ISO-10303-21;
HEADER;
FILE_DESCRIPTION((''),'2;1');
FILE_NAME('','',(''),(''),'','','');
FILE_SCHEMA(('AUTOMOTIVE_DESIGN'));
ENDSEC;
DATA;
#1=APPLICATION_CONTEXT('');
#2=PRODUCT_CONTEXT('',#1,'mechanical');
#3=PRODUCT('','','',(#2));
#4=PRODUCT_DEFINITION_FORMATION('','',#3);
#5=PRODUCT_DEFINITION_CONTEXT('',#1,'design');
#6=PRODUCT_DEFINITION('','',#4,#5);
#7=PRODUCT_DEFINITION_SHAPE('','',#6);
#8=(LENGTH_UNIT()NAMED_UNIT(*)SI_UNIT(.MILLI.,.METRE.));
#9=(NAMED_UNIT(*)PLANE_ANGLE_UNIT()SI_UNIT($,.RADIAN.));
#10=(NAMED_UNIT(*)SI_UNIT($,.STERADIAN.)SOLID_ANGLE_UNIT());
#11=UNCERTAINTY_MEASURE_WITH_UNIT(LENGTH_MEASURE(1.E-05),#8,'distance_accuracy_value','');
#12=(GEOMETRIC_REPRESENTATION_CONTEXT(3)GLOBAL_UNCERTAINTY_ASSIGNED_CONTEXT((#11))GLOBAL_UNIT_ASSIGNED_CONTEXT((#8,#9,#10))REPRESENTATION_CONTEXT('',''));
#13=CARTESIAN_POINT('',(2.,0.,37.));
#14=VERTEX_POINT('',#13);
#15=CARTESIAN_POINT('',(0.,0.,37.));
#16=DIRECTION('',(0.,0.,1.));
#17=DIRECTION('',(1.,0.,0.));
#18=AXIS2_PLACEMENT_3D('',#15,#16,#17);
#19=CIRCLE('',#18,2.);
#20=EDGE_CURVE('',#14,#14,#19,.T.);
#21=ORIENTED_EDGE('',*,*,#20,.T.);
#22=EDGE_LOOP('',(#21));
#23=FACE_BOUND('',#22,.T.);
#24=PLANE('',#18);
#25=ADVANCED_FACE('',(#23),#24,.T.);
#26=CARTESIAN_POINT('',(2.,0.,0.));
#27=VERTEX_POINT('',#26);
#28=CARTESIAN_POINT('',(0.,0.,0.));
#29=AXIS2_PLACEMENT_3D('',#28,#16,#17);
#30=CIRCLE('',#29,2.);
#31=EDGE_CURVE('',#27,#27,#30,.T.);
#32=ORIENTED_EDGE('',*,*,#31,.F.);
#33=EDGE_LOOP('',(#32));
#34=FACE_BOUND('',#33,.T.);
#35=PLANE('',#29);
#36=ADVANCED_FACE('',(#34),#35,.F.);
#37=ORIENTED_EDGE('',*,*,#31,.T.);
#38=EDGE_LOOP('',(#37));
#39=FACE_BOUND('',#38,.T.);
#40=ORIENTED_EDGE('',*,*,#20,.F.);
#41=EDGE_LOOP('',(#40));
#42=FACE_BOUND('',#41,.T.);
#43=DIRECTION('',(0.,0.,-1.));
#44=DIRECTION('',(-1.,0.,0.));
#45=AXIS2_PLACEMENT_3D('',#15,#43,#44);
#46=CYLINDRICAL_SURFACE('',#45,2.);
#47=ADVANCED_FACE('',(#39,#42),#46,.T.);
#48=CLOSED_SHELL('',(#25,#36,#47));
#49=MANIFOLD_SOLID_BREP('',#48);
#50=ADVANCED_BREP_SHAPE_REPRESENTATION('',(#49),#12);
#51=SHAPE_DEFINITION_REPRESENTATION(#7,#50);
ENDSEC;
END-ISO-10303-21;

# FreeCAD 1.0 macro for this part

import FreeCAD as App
import Part
import Sketcher

V = App.Vector

doc = App.newDocument("Part")
params = doc.addObject("Spreadsheet::Sheet", "Params")
for row, (alias, value) in enumerate([
    ("sketch1_diameter", "4 mm"),
    ("pad1_length", "37 mm"),
], start=1):
    params.set(f"A{row}", alias)
    params.set(f"B{row}", "=" + value)
    params.setAlias(f"B{row}", alias)

body = doc.addObject("PartDesign::Body", "Body")

sketch1 = doc.addObject("Sketcher::SketchObject", "Sketch")
body.addObject(sketch1)
sketch1.AttachmentSupport = (doc.XY_Plane, [""])
sketch1.MapMode = "FlatFace"
sketch1.addGeometry(Part.Circle(V(0, 0, 0), V(0, 0, 1), 2), False)
sketch1.addConstraint([
    Sketcher.Constraint("Coincident", 0, 3, -1, 1),
    Sketcher.Constraint("Diameter", 0, 4.0),
])
sketch1.setExpression("Constraints[1]", "Params.sketch1_diameter")
pad1 = doc.addObject("PartDesign::Pad", "Pad")
body.addObject(pad1)
pad1.Profile = sketch1
pad1.setExpression("Length", "Params.pad1_length")

doc.recompute()
